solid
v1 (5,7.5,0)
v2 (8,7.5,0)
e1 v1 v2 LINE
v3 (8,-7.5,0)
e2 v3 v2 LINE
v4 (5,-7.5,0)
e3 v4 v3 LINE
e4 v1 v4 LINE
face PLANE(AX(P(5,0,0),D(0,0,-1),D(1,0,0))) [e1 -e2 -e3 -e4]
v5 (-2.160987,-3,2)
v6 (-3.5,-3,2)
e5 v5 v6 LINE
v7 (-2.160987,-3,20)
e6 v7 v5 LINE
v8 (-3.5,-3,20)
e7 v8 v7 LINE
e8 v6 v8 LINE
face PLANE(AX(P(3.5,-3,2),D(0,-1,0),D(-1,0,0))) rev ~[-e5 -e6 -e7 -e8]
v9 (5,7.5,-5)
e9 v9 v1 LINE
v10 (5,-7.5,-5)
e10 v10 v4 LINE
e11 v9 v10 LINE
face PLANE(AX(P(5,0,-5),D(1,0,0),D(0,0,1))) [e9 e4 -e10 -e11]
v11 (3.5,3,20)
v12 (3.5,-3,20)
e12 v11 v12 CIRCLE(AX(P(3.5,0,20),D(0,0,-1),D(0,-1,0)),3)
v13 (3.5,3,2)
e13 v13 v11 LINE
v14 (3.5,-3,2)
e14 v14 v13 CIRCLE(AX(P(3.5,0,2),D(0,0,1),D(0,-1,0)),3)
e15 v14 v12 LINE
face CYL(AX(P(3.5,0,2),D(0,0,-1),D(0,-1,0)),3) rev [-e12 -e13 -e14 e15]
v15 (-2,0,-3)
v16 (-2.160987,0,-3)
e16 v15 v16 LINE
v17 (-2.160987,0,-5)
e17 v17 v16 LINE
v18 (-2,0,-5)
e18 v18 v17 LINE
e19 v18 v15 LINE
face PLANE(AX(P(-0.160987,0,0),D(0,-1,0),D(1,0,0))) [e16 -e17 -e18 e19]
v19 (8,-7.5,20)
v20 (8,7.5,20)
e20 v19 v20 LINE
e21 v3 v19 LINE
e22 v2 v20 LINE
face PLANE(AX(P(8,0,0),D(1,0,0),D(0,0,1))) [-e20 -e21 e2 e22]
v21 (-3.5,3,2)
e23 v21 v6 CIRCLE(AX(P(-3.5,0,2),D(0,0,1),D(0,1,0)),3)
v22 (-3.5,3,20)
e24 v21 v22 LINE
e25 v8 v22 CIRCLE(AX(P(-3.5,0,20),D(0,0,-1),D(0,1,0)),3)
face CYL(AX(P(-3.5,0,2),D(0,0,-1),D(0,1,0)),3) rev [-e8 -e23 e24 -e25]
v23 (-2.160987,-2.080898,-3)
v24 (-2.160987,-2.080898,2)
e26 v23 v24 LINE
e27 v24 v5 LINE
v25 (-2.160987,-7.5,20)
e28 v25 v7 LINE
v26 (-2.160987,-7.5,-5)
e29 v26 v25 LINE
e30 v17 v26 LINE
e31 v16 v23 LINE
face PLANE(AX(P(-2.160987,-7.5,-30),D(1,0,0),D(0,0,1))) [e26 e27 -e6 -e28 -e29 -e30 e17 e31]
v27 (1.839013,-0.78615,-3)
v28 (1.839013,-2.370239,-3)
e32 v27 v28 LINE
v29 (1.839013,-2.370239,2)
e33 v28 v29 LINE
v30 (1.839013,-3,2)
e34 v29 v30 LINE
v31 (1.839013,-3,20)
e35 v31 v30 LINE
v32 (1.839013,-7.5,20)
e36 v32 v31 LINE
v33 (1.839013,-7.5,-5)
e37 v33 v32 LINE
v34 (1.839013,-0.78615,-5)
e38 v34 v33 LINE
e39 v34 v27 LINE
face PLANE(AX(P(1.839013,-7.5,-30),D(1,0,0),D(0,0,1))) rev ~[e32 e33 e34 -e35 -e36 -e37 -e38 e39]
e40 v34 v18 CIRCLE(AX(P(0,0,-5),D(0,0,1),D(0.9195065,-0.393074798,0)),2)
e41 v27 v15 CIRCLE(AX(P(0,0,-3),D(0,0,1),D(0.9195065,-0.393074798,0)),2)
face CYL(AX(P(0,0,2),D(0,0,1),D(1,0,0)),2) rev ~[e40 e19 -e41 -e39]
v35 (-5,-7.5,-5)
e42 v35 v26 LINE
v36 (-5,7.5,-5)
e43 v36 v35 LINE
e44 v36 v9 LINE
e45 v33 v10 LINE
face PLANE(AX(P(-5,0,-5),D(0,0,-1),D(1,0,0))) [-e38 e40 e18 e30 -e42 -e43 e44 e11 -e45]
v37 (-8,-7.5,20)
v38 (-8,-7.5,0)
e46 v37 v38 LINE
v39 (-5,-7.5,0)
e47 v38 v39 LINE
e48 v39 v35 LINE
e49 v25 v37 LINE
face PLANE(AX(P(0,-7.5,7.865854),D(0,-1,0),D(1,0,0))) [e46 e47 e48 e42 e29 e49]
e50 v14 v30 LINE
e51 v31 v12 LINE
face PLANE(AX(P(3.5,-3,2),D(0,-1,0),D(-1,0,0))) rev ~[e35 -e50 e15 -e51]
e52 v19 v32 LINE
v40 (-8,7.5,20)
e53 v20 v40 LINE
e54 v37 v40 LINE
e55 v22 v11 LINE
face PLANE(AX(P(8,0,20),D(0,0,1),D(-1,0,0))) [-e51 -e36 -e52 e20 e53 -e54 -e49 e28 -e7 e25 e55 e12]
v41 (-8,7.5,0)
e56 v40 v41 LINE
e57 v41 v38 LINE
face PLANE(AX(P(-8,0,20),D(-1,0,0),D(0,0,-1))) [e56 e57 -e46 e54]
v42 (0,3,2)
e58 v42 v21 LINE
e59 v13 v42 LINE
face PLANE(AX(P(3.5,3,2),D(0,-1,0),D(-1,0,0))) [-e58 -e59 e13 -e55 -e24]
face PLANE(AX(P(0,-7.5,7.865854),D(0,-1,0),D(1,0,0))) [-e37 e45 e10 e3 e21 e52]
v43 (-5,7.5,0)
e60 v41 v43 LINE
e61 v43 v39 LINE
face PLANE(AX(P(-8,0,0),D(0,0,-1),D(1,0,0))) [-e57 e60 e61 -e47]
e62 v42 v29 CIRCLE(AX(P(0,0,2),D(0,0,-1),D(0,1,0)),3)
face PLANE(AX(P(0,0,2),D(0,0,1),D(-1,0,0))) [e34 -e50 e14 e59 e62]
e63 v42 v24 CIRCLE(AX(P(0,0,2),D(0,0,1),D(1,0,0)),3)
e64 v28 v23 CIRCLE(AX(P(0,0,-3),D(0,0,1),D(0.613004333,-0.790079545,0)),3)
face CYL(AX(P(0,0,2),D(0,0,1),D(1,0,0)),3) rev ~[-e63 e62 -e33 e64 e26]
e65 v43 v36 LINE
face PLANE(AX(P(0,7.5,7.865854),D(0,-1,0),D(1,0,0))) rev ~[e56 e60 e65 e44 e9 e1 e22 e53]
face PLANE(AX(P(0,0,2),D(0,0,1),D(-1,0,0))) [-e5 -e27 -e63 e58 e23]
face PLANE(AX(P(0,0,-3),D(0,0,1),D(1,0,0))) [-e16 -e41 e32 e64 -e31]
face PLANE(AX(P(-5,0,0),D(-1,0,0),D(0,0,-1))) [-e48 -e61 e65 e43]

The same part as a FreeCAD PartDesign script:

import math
import FreeCAD as App
import Part
import Sketcher
from FreeCAD import Vector
Q = App.Units.Quantity

doc = App.newDocument("Part")
body = doc.addObject("PartDesign::Body", "Body")

# Sketch on XZ plane
sketch1 = doc.addObject("Sketcher::SketchObject", "Sketch")
body.addObject(sketch1)
sketch1.AttachmentSupport = (doc.XZ_Plane, [""])
sketch1.MapMode = "FlatFace"
sketch1.AttachmentOffset = App.Placement(Vector(0, 0, 7.5), App.Rotation())
sketch1.addGeometry(Part.LineSegment(Vector(-2.2, 30, 0), Vector(-2.2, -30, 0)), False)
sketch1.addGeometry(Part.LineSegment(Vector(-2.2, -30, 0), Vector(1.8, -30, 0)), False)
sketch1.addGeometry(Part.LineSegment(Vector(1.8, -30, 0), Vector(1.8, 30, 0)), False)
sketch1.addGeometry(Part.LineSegment(Vector(1.8, 30, 0), Vector(-2.2, 30, 0)), False)
sketch1.addConstraint(Sketcher.Constraint("Coincident", 0, 2, 1, 1))
sketch1.addConstraint(Sketcher.Constraint("Coincident", 1, 2, 2, 1))
sketch1.addConstraint(Sketcher.Constraint("Coincident", 2, 2, 3, 1))
sketch1.addConstraint(Sketcher.Constraint("Coincident", 3, 2, 0, 1))
sketch1.addConstraint(Sketcher.Constraint("Vertical", 0))
sketch1.addConstraint(Sketcher.Constraint("Horizontal", 1))
sketch1.addConstraint(Sketcher.Constraint("Vertical", 2))
sketch1.addConstraint(Sketcher.Constraint("Horizontal", 3))
sketch1.addConstraint(Sketcher.Constraint("DistanceX", 1, 1, 1, 2, Q("4 mm")))
sketch1.addConstraint(Sketcher.Constraint("DistanceY", 0, 2, 0, 1, Q("60 mm")))
sketch1.addConstraint(Sketcher.Constraint("DistanceY", 0, 2, -1, 1, Q("30 mm")))
sketch1.addConstraint(Sketcher.Constraint("DistanceX", 0, 2, -1, 1, Q("2.160987 mm")))
pad1 = doc.addObject("PartDesign::Pad", "Pad")
body.addObject(pad1)
pad1.Profile = sketch1
pad1.Length = 15
pad1.Midplane = True
body2 = doc.addObject("PartDesign::Body", "Body001")

# Sketch on XY plane
sketch2 = doc.addObject("Sketcher::SketchObject", "Sketch001")
body2.addObject(sketch2)
sketch2.AttachmentSupport = (doc.getObject("XY_Plane001"), [""])
sketch2.MapMode = "FlatFace"
sketch2.AttachmentOffset = App.Placement(Vector(0, 0, 2), App.Rotation())
sketch2.addGeometry(Part.ArcOfCircle(Part.Circle(Vector(3.5, 0, 0), Vector(0, 0, 1), 3), math.radians(-90), math.radians(90)), False)
sketch2.addGeometry(Part.LineSegment(Vector(3.5, 3, 0), Vector(-3.5, 3, 0)), False)
sketch2.addGeometry(Part.ArcOfCircle(Part.Circle(Vector(-3.5, 0, 0), Vector(0, 0, 1), 3), math.radians(90), math.radians(270)), False)
sketch2.addGeometry(Part.LineSegment(Vector(-3.5, -3, 0), Vector(3.5, -3, 0)), False)
sketch2.addConstraint(Sketcher.Constraint("Tangent", 0, 2, 1, 1))
sketch2.addConstraint(Sketcher.Constraint("Tangent", 1, 2, 2, 1))
sketch2.addConstraint(Sketcher.Constraint("Tangent", 2, 2, 3, 1))
sketch2.addConstraint(Sketcher.Constraint("Tangent", 3, 2, 0, 1))
sketch2.addConstraint(Sketcher.Constraint("Horizontal", 1))
sketch2.addConstraint(Sketcher.Constraint("Horizontal", 3))
sketch2.addConstraint(Sketcher.Constraint("Symmetric", 0, 3, 2, 3, -1, 1))
sketch2.addConstraint(Sketcher.Constraint("Radius", 0, Q("3 mm")))
sketch2.addConstraint(Sketcher.Constraint("DistanceX", 1, 2, 1, 1, Q("7 mm")))
pad2 = doc.addObject("PartDesign::Pad", "Pad001")
body2.addObject(pad2)
pad2.Profile = sketch2
pad2.Length = 30
body3 = doc.addObject("PartDesign::Body", "Body002")

# Sketch on XY plane
sketch3 = doc.addObject("Sketcher::SketchObject", "Sketch002")
body3.addObject(sketch3)
sketch3.AttachmentSupport = (doc.getObject("XY_Plane002"), [""])
sketch3.MapMode = "FlatFace"
sketch3.AttachmentOffset = App.Placement(Vector(0, 0, 2), App.Rotation())
sketch3.addGeometry(Part.Circle(Vector(0, 0, 0), Vector(0, 0, 1), 3), False)
sketch3.addConstraint(Sketcher.Constraint("Coincident", 0, 3, -1, 1))
sketch3.addConstraint(Sketcher.Constraint("Diameter", 0, Q("6 mm")))
pad3 = doc.addObject("PartDesign::Pad", "Pad002")
body3.addObject(pad3)
pad3.Profile = sketch3
pad3.Length = 10
pad3.Midplane = True
body4 = doc.addObject("PartDesign::Body", "Body003")

# Sketch on XY plane
sketch4 = doc.addObject("Sketcher::SketchObject", "Sketch003")
body4.addObject(sketch4)
sketch4.AttachmentSupport = (doc.getObject("XY_Plane003"), [""])
sketch4.MapMode = "FlatFace"
sketch4.AttachmentOffset = App.Placement(Vector(0, 0, 2), App.Rotation())
sketch4.addGeometry(Part.Circle(Vector(0, 0, 0), Vector(0, 0, 1), 2), False)
sketch4.addConstraint(Sketcher.Constraint("Coincident", 0, 3, -1, 1))
sketch4.addConstraint(Sketcher.Constraint("Diameter", 0, Q("4 mm")))
pad4 = doc.addObject("PartDesign::Pad", "Pad003")
body4.addObject(pad4)
pad4.Profile = sketch4
pad4.Length = 80
pad4.Midplane = True
doc.recompute()

boolean = doc.addObject("PartDesign::Boolean", "Boolean")
body4.addObject(boolean)
boolean.Type = "Fuse"
boolean.addObjects([body])
doc.recompute()

boolean2 = doc.addObject("PartDesign::Boolean", "Boolean001")
body4.addObject(boolean2)
boolean2.Type = "Fuse"
boolean2.addObjects([body2])
doc.recompute()

boolean3 = doc.addObject("PartDesign::Boolean", "Boolean002")
body4.addObject(boolean3)
boolean3.Type = "Fuse"
boolean3.addObjects([body3])
body5 = doc.addObject("PartDesign::Body", "Body004")

# Sketch on XZ plane
sketch5 = doc.addObject("Sketcher::SketchObject", "Sketch004")
body5.addObject(sketch5)
sketch5.AttachmentSupport = (doc.getObject("XZ_Plane004"), [""])
sketch5.MapMode = "FlatFace"
sketch5.addGeometry(Part.LineSegment(Vector(-8, 20, 0), Vector(-8, 0, 0)), False)
sketch5.addGeometry(Part.LineSegment(Vector(-8, 0, 0), Vector(-5, 0, 0)), False)
sketch5.addGeometry(Part.LineSegment(Vector(-5, 0, 0), Vector(-5, -5, 0)), False)
sketch5.addGeometry(Part.LineSegment(Vector(-5, -5, 0), Vector(5, -5, 0)), False)
sketch5.addGeometry(Part.LineSegment(Vector(5, -5, 0), Vector(5, 0, 0)), False)
sketch5.addGeometry(Part.LineSegment(Vector(5, 0, 0), Vector(8, 0, 0)), False)
sketch5.addGeometry(Part.LineSegment(Vector(8, 0, 0), Vector(8, 20, 0)), False)
sketch5.addGeometry(Part.LineSegment(Vector(8, 20, 0), Vector(-8, 20, 0)), False)
sketch5.addConstraint(Sketcher.Constraint("Coincident", 0, 2, 1, 1))
sketch5.addConstraint(Sketcher.Constraint("Coincident", 1, 2, 2, 1))
sketch5.addConstraint(Sketcher.Constraint("Coincident", 2, 2, 3, 1))
sketch5.addConstraint(Sketcher.Constraint("Coincident", 3, 2, 4, 1))
sketch5.addConstraint(Sketcher.Constraint("Coincident", 4, 2, 5, 1))
sketch5.addConstraint(Sketcher.Constraint("Coincident", 5, 2, 6, 1))
sketch5.addConstraint(Sketcher.Constraint("Coincident", 6, 2, 7, 1))
sketch5.addConstraint(Sketcher.Constraint("Coincident", 7, 2, 0, 1))
sketch5.addConstraint(Sketcher.Constraint("Vertical", 0))
sketch5.addConstraint(Sketcher.Constraint("Horizontal", 1))
sketch5.addConstraint(Sketcher.Constraint("Vertical", 2))
sketch5.addConstraint(Sketcher.Constraint("Horizontal", 3))
sketch5.addConstraint(Sketcher.Constraint("Vertical", 4))
sketch5.addConstraint(Sketcher.Constraint("Horizontal", 5))
sketch5.addConstraint(Sketcher.Constraint("Vertical", 6))
sketch5.addConstraint(Sketcher.Constraint("Horizontal", 7))
sketch5.addConstraint(Sketcher.Constraint("Symmetric", 1, 2, 4, 2, -1, 1))
sketch5.addConstraint(Sketcher.Constraint("Symmetric", 0, 2, 5, 2, -2))
sketch5.addConstraint(Sketcher.Constraint("DistanceX", 1, 1, 1, 2, Q("3 mm")))
sketch5.addConstraint(Sketcher.Constraint("DistanceX", 3, 1, 3, 2, Q("10 mm")))
sketch5.addConstraint(Sketcher.Constraint("DistanceY", 0, 2, 0, 1, Q("20 mm")))
sketch5.addConstraint(Sketcher.Constraint("DistanceY", 2, 2, 2, 1, Q("5 mm")))
pad5 = doc.addObject("PartDesign::Pad", "Pad004")
body5.addObject(pad5)
pad5.Profile = sketch5
pad5.Length = 15
pad5.Midplane = True
doc.recompute()

boolean4 = doc.addObject("PartDesign::Boolean", "Boolean003")
body5.addObject(boolean4)
boolean4.Type = "Cut"
boolean4.addObjects([body4])

doc.recompute()
